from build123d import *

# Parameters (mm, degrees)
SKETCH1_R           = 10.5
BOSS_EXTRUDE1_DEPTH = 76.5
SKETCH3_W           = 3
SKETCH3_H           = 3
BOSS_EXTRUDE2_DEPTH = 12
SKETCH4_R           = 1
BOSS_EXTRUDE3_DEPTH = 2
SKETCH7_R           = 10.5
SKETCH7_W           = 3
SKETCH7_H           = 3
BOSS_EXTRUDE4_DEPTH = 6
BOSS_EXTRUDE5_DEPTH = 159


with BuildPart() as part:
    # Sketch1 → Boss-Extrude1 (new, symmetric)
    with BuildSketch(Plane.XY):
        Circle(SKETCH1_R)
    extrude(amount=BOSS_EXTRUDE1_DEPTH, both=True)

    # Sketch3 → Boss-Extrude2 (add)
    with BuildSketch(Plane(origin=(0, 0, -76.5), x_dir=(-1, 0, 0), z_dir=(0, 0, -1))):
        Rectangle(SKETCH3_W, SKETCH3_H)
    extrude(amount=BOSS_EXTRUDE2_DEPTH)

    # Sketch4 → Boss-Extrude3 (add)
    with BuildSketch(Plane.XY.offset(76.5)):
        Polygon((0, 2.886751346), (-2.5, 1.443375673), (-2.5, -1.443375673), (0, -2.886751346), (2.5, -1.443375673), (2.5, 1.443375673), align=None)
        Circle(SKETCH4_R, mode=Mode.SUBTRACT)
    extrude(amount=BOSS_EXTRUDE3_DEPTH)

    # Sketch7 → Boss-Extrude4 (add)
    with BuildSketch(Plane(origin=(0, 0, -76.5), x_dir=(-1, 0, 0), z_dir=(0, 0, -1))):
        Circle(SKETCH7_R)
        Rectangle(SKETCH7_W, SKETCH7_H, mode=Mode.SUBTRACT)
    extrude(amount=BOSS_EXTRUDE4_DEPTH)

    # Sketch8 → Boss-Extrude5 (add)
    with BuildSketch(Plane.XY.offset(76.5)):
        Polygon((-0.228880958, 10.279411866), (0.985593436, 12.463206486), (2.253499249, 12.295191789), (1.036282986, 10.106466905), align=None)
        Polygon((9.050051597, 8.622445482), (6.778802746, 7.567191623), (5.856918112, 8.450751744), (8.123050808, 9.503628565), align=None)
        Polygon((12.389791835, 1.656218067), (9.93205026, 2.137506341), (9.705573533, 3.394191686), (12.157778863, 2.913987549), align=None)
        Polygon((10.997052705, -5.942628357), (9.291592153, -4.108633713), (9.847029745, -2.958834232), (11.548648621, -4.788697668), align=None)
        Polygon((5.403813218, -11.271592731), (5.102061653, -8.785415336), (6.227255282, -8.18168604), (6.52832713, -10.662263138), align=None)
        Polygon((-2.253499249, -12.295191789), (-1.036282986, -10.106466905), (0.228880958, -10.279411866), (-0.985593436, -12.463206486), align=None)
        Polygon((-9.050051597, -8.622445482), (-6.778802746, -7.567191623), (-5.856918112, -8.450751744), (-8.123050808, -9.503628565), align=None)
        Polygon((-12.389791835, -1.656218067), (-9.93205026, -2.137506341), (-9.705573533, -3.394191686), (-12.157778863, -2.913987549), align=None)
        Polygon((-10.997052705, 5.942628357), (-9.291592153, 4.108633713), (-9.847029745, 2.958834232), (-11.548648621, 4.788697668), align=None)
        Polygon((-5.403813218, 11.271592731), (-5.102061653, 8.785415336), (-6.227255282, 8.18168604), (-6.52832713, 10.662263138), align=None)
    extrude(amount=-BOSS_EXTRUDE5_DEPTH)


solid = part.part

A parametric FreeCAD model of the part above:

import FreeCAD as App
import Part
import Sketcher
from FreeCAD import Vector
Q = App.Units.Quantity


def add_polygon(sketch, points):
    """Adds a closed chain of lines whose ends are joined by coincident constraints."""
    first, n = sketch.GeometryCount, len(points)
    for a, b in zip(points, points[1:] + points[:1]):
        sketch.addGeometry(Part.LineSegment(App.Vector(*a, 0), App.Vector(*b, 0)), False)
    for i in range(n):
        sketch.addConstraint(Sketcher.Constraint("Coincident", first + i, 2, first + (i + 1) % n, 1))

doc = App.newDocument("Part")
body = doc.addObject("PartDesign::Body", "Body")

sketch1 = body.newObject("Sketcher::SketchObject", "Sketch")
sketch1.AttachmentSupport = (doc.getObject("XY_Plane"), [""])
sketch1.MapMode = "FlatFace"
sketch1.addGeometry(Part.Circle(Vector(0, 0, 0), Vector(0, 0, 1), 10), False)
sketch1.addConstraint([
    Sketcher.Constraint("Coincident", 0, 3, -1, 1),
    Sketcher.Constraint("Diameter", 0, Q("21 mm")),
])
pad1 = body.newObject("PartDesign::Pad", "Pad")
pad1.Profile = sketch1
pad1.Length = 153
pad1.Midplane = True

sketch2 = body.newObject("Sketcher::SketchObject", "Sketch001")
sketch2.AttachmentSupport = (doc.getObject("XY_Plane"), [""])
sketch2.MapMode = "FlatFace"
sketch2.AttachmentOffset = App.Placement(Vector(0, 0, -76.5), App.Rotation())
add_polygon(sketch2, [(1.5, 1.5), (1.5, -1.5), (-1.5, -1.5), (-1.5, 1.5)])
sketch2.addConstraint([
    Sketcher.Constraint("Vertical", 0),
    Sketcher.Constraint("Horizontal", 1),
    Sketcher.Constraint("Vertical", 2),
    Sketcher.Constraint("Horizontal", 3),
    Sketcher.Constraint("Symmetric", 0, 2, 2, 2, -1, 1),
    Sketcher.Constraint("Equal", 3, 0),
    Sketcher.Constraint("DistanceX", 1, 2, 1, 1, Q("3 mm")),
])
pad2 = body.newObject("PartDesign::Pad", "Pad001")
pad2.Profile = sketch2
pad2.Length = 12
pad2.Reversed = True

sketch3 = body.newObject("Sketcher::SketchObject", "Sketch002")
sketch3.AttachmentSupport = (doc.getObject("XY_Plane"), [""])
sketch3.MapMode = "FlatFace"
sketch3.AttachmentOffset = App.Placement(Vector(0, 0, 76.5), App.Rotation())
add_polygon(sketch3, [(0, 2.9), (-2.5, 1.4), (-2.5, -1.4), (0, -2.9), (2.5, -1.4), (2.5, 1.4)])
sketch3.addGeometry(Part.Circle(Vector(0, 0, 0), Vector(0, 0, 1), 1), False)
sketch3.addConstraint([
    Sketcher.Constraint("Vertical", 1),
    Sketcher.Constraint("Vertical", 4),
    Sketcher.Constraint("Coincident", 6, 3, -1, 1),
    Sketcher.Constraint("Symmetric", 0, 2, 3, 2, -1, 1),
    Sketcher.Constraint("Symmetric", 2, 2, 5, 2, -1, 1),
    Sketcher.Constraint("PointOnObject", 2, 2, -2),
    Sketcher.Constraint("Parallel", 2, 5),
    Sketcher.Constraint("Horizontal", 1, 2, 3, 2),
    Sketcher.Constraint("Diameter", 6, Q("2 mm")),
    Sketcher.Constraint("Angle", 0, Q("-150 deg")),
    Sketcher.Constraint("DistanceX", 1, 2, 3, 2, Q("5 mm")),
    Sketcher.Constraint("DistanceY", 1, 2, 1, 1, Q("2.886751 mm")),
])
pad3 = body.newObject("PartDesign::Pad", "Pad002")
pad3.Profile = sketch3
pad3.Length = 2

sketch4 = body.newObject("Sketcher::SketchObject", "Sketch003")
sketch4.AttachmentSupport = (doc.getObject("XY_Plane"), [""])
sketch4.MapMode = "FlatFace"
sketch4.AttachmentOffset = App.Placement(Vector(0, 0, -76.5), App.Rotation())
sketch4.addGeometry(Part.Circle(Vector(0, 0, 0), Vector(0, 0, 1), 10.5), False)
add_polygon(sketch4, [(-1.5, -1.5), (1.5, -1.5), (1.5, 1.5), (-1.5, 1.5)])
sketch4.addConstraint([
    Sketcher.Constraint("Horizontal", 1),
    Sketcher.Constraint("Vertical", 2),
    Sketcher.Constraint("Horizontal", 3),
    Sketcher.Constraint("Vertical", 4),
    Sketcher.Constraint("Coincident", 0, 3, -1, 1),
    Sketcher.Constraint("Symmetric", 1, 2, 3, 2, -1, 1),
    Sketcher.Constraint("Equal", 3, 2),
    Sketcher.Constraint("Diameter", 0, Q("21 mm")),
    Sketcher.Constraint("DistanceX", 1, 1, 1, 2, Q("3 mm")),
])
pad4 = body.newObject("PartDesign::Pad", "Pad003")
pad4.Profile = sketch4
pad4.Length = 6
pad4.Reversed = True

sketch5 = body.newObject("Sketcher::SketchObject", "Sketch004")
sketch5.AttachmentSupport = (doc.getObject("XY_Plane"), [""])
sketch5.MapMode = "FlatFace"
sketch5.AttachmentOffset = App.Placement(Vector(0, 0, 76.5), App.Rotation())
add_polygon(sketch5, [(1, 12.5), (-0.2, 10.3), (1, 10.1), (2.3, 12.3)])
add_polygon(sketch5, [(6.8, 7.6), (9.1, 8.6), (8.1, 9.5), (5.9, 8.5)])
add_polygon(sketch5, [(9.9, 2.1), (12.4, 1.7), (12.2, 2.9), (9.7, 3.4)])
add_polygon(sketch5, [(9.3, -4.1), (11, -5.9), (11.5, -4.8), (9.8, -3)])
add_polygon(sketch5, [(5.1, -8.8), (5.4, -11.3), (6.5, -10.7), (6.2, -8.2)])
add_polygon(sketch5, [(-1, -10.1), (-2.3, -12.3), (-1, -12.5), (0.2, -10.3)])
add_polygon(sketch5, [(-6.8, -7.6), (-9.1, -8.6), (-8.1, -9.5), (-5.9, -8.5)])
add_polygon(sketch5, [(-9.9, -2.1), (-12.4, -1.7), (-12.2, -2.9), (-9.7, -3.4)])
add_polygon(sketch5, [(-9.3, 4.1), (-11, 5.9), (-11.5, 4.8), (-9.8, 3)])
add_polygon(sketch5, [(-5.1, 8.8), (-5.4, 11.3), (-6.5, 10.7), (-6.2, 8.2)])
sketch5.addConstraint([
    Sketcher.Constraint("Symmetric", 2, 2, 20, 2, -1, 1),
    Sketcher.Constraint("Symmetric", 3, 2, 21, 2, -1, 1),
    Sketcher.Constraint("Symmetric", 0, 2, 22, 2, -1, 1),
    Sketcher.Constraint("Symmetric", 1, 2, 23, 2, -1, 1),
    Sketcher.Constraint("Symmetric", 4, 2, 24, 2, -1, 1),
    Sketcher.Constraint("Symmetric", 5, 2, 25, 2, -1, 1),
    Sketcher.Constraint("Symmetric", 6, 2, 26, 2, -1, 1),
    Sketcher.Constraint("Symmetric", 7, 2, 27, 2, -1, 1),
    Sketcher.Constraint("Symmetric", 8, 2, 28, 2, -1, 1),
    Sketcher.Constraint("Symmetric", 9, 2, 29, 2, -1, 1),
    Sketcher.Constraint("Symmetric", 10, 2, 30, 2, -1, 1),
    Sketcher.Constraint("Symmetric", 11, 2, 31, 2, -1, 1),
    Sketcher.Constraint("Symmetric", 12, 2, 32, 2, -1, 1),
    Sketcher.Constraint("Symmetric", 13, 2, 33, 2, -1, 1),
    Sketcher.Constraint("Symmetric", 14, 2, 34, 2, -1, 1),
    Sketcher.Constraint("Symmetric", 15, 2, 35, 2, -1, 1),
    Sketcher.Constraint("Symmetric", 16, 2, 36, 2, -1, 1),
    Sketcher.Constraint("Symmetric", 17, 2, 37, 2, -1, 1),
    Sketcher.Constraint("Symmetric", 18, 2, 38, 2, -1, 1),
    Sketcher.Constraint("Symmetric", 19, 2, 39, 2, -1, 1),
    Sketcher.Constraint("Parallel", 0, 2),
    Sketcher.Constraint("Parallel", 4, 6),
    Sketcher.Constraint("Parallel", 8, 10),
    Sketcher.Constraint("Parallel", 12, 14),
    Sketcher.Constraint("Parallel", 16, 18),
    Sketcher.Constraint("Equal", 2, 4),
    Sketcher.Constraint("Equal", 3, 5),
    Sketcher.Constraint("Equal", 0, 6),
    Sketcher.Constraint("Equal", 4, 8),
    Sketcher.Constraint("Equal", 5, 9),
    Sketcher.Constraint("Equal", 6, 10),
    Sketcher.Constraint("Equal", 8, 12),
    Sketcher.Constraint("Equal", 9, 13),
    Sketcher.Constraint("Equal", 10, 14),
    Sketcher.Constraint("Equal", 12, 16),
    Sketcher.Constraint("Equal", 13, 17),
    Sketcher.Constraint("Equal", 14, 18),
    Sketcher.Constraint("DistanceX", 5, 2, 4, 2, Q("0.927001 mm")),
    Sketcher.Constraint("DistanceY", 7, 2, 2, 2, Q("4.728 mm")),
    Sketcher.Constraint("DistanceY", 10, 2, 7, 2, Q("4.173 mm")),
    Sketcher.Constraint("DistanceX", 4, 2, 11, 2, Q("0.881999 mm")),
    Sketcher.Constraint("DistanceX", -1, 1, 2, 2, Q("2.253499 mm")),
    Sketcher.Constraint("DistanceX", 11, 2, 13, 2, Q("1.616598 mm")),
    Sketcher.Constraint("DistanceY", 15, 2, 14, 2, Q("1.149799 mm")),
    Sketcher.Constraint("DistanceX", 15, 2, 8, 2, Q("3.0982 mm")),
    Sketcher.Constraint("DistanceY", 16, 2, 11, 2, Q("13.409099 mm")),
    Sketcher.Constraint("DistanceY", 20, 2, 16, 2, Q("1.023599 mm")),
    Sketcher.Constraint("Distance", 0, Q("2.498781 mm")),
    Sketcher.Constraint("Distance", 1, Q("1.27693 mm")),
    Sketcher.Constraint("Distance", 3, Q("1.278989 mm")),
    Sketcher.Constraint("DistanceX", 0, 2, -1, 1, Q("0.228881 mm")),
    Sketcher.Constraint("DistanceY", -1, 1, 0, 2, Q("10.279412 mm")),
    Sketcher.Constraint("DistanceY", -1, 1, 2, 2, Q("12.295192 mm")),
    Sketcher.Constraint("DistanceX", -1, 1, 4, 2, Q("9.050052 mm")),
    Sketcher.Constraint("DistanceY", -1, 1, 5, 2, Q("9.503629 mm")),
    Sketcher.Constraint("DistanceX", -1, 1, 8, 2, Q("12.389792 mm")),
    Sketcher.Constraint("DistanceY", 12, 2, -1, 1, Q("5.942628 mm")),
    Sketcher.Constraint("DistanceX", -1, 1, 19, 2, Q("5.102062 mm")),
    Sketcher.Constraint("DistanceX", 16, 2, 12, 2, Q("5.593239 mm")),
    Sketcher.Constraint("DistanceY", 16, 2, 17, 2, Q("0.60933 mm")),
])
pad5 = body.newObject("PartDesign::Pad", "Pad004")
pad5.Profile = sketch5
pad5.Length = 159
pad5.Reversed = True

doc.recompute()
